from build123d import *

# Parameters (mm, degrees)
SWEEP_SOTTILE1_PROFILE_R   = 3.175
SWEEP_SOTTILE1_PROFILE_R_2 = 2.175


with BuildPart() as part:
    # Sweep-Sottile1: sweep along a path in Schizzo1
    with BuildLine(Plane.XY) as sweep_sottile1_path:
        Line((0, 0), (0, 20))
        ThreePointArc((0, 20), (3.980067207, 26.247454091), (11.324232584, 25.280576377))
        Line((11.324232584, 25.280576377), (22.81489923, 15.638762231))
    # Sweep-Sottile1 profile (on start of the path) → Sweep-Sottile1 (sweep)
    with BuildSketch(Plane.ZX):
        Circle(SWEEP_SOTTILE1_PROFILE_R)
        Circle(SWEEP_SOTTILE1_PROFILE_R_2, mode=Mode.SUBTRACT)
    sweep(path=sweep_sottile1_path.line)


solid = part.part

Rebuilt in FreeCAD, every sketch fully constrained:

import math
import FreeCAD as App
import Part
import Sketcher
from FreeCAD import Vector
Q = App.Units.Quantity

doc = App.newDocument("Part")
body = doc.addObject("PartDesign::Body", "Body")

# Sketch on XZ plane
sketch1 = doc.addObject("Sketcher::SketchObject", "Sketch")
body.addObject(sketch1)
sketch1.AttachmentSupport = (doc.XZ_Plane, [""])
sketch1.MapMode = "FlatFace"
sketch1.addGeometry([
    Part.Circle(Vector(0, 0, 0), Vector(0, 0, 1), 3.2),
    Part.Circle(Vector(0, 0, 0), Vector(0, 0, 1), 2.2),
], False)
sketch1.addConstraint([
    Sketcher.Constraint("Coincident", 0, 3, -1, 1),
    Sketcher.Constraint("Coincident", 1, 3, -1, 1),
    Sketcher.Constraint("Diameter", 0, Q("6.35 mm")),
    Sketcher.Constraint("Diameter", 1, Q("4.35 mm")),
])

# Sketch on XY plane
sketch2 = doc.addObject("Sketcher::SketchObject", "Sketch001")
body.addObject(sketch2)
sketch2.AttachmentSupport = (doc.XY_Plane, [""])
sketch2.MapMode = "FlatFace"
sketch2.addGeometry([
    Part.LineSegment(Vector(0, 0, 0), Vector(0, 20, 0)),
    Part.ArcOfCircle(Part.Circle(Vector(7, 20, 0), Vector(0, 0, 1), 7), math.radians(50), math.radians(180)),
    Part.LineSegment(Vector(11, 25, 0), Vector(23, 16, 0)),
], False)
sketch2.addConstraint([
    Sketcher.Constraint("Tangent", 0, 2, 1, 2),
    Sketcher.Constraint("Tangent", 1, 1, 2, 1),
    Sketcher.Constraint("Vertical", 0),
    Sketcher.Constraint("Coincident", 0, 1, -1, 1),
    Sketcher.Constraint("DistanceY", 0, 1, 0, 2, Q("20 mm")),
    Sketcher.Constraint("Angle", 2, Q("-40 deg")),
    Sketcher.Constraint("Distance", 2, Q("15 mm")),
    Sketcher.Constraint("Radius", 1, Q("6.893303 mm")),
])
doc.recompute()

additivepipe = doc.addObject("PartDesign::AdditivePipe", "AdditivePipe")
body.addObject(additivepipe)
additivepipe.Profile = sketch1
additivepipe.Spine = (sketch2, ["Edge1", "Edge2", "Edge3"])

doc.recompute()
